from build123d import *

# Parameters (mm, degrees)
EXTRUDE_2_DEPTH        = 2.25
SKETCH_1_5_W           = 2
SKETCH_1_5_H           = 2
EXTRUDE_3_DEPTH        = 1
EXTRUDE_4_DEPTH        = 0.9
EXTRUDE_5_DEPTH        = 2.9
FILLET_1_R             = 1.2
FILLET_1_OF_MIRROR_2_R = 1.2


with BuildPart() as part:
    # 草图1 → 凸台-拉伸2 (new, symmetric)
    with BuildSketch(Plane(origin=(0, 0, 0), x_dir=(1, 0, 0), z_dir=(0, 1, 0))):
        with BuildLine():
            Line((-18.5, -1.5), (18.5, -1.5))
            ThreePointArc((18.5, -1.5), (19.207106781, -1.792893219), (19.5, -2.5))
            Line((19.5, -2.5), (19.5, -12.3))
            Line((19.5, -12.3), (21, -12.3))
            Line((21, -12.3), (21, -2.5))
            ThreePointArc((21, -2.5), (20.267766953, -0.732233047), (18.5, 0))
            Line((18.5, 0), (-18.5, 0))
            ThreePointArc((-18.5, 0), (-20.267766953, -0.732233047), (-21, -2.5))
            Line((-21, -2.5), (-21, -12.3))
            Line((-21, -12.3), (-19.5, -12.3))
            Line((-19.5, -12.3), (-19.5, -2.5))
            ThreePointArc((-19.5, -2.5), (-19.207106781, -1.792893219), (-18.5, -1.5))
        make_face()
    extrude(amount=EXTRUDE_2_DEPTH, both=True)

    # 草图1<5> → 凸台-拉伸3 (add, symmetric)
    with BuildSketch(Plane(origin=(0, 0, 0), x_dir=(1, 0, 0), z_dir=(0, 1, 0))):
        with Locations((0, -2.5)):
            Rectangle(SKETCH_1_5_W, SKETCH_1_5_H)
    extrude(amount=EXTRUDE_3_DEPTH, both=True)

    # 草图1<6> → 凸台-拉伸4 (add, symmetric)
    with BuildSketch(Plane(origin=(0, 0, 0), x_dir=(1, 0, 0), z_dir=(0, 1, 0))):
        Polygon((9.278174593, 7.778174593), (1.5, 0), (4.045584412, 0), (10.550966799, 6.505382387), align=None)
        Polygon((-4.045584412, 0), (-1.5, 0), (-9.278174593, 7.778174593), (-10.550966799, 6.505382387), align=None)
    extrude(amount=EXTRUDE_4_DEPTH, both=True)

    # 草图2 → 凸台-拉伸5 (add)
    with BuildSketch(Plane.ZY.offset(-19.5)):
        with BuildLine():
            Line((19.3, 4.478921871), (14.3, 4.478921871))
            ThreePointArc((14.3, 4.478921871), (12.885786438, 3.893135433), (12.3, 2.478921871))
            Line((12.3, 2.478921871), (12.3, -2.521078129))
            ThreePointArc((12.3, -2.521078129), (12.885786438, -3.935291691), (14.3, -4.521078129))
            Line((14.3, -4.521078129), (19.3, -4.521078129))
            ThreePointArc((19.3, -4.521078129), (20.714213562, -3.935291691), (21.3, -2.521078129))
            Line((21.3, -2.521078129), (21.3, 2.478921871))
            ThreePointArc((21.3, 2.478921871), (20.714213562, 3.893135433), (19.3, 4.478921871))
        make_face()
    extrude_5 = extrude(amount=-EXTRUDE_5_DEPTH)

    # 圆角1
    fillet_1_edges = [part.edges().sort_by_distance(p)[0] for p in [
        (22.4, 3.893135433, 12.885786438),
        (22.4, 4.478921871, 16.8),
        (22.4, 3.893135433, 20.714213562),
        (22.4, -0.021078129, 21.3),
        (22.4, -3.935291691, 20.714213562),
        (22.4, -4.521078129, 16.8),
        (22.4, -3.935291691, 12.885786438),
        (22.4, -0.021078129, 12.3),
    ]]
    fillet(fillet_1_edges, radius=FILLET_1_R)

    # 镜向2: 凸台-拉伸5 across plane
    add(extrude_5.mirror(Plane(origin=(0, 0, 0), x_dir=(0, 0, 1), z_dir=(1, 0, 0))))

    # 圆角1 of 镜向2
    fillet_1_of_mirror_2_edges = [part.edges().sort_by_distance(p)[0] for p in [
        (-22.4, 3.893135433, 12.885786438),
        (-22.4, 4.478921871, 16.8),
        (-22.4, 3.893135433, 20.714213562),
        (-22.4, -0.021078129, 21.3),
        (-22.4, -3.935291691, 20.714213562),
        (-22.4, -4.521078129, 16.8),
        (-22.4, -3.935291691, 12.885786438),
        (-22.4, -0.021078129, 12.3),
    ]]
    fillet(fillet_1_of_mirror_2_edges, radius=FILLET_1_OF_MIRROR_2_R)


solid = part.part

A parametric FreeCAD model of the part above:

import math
import FreeCAD as App
import Part
import Sketcher

V = App.Vector


def edges_at(feature, points):
    """Names of the edges that pass closest to the given points."""
    edges = feature.Shape.Edges
    near = lambda p: min(range(len(edges)), key=lambda i: edges[i].distToShape(Part.Vertex(*p))[0])
    return sorted({f"Edge{near(p) + 1}" for p in points})

doc = App.newDocument("Part")
params = doc.addObject("Spreadsheet::Sheet", "Params")
for row, (alias, value) in enumerate([
    ("sketch1_radius", "1 mm"),
    ("sketch1_radius2", "2.5 mm"),
    ("sketch1_width", "37 mm"),
    ("sketch1_height", "9.8 mm"),
    ("pad1_length", "4.5 mm"),
    ("sketch2_width", "2 mm"),
    ("pad2_length", "2 mm"),
    ("sketch3_length", "11 mm"),
    ("sketch3_length2", "9.2 mm"),
    ("pad3_length", "1.8 mm"),
    ("sketch4_radius", "2 mm"),
    ("sketch4_width", "5 mm"),
    ("pad4_length", "2.9 mm"),
    ("fillet_radius", "1.2 mm"),
    ("fillet2_radius", "1.2 mm"),
], start=1):
    params.set(f"A{row}", alias)
    params.set(f"B{row}", "=" + value)
    params.setAlias(f"B{row}", alias)

body = doc.addObject("PartDesign::Body", "Body")

# Sketch on XZ plane
sketch1 = doc.addObject("Sketcher::SketchObject", "Sketch")
body.addObject(sketch1)
sketch1.AttachmentSupport = (doc.XZ_Plane, [""])
sketch1.MapMode = "FlatFace"
sketch1.addGeometry([
    Part.LineSegment(V(-18.5, 1.5, 0), V(18.5, 1.5, 0)),  # 0
    Part.ArcOfCircle(Part.Circle(V(18.5, 2.5, 0), V(0, 0, 1), 1), math.radians(-90), math.radians(0)),  # 1
    Part.LineSegment(V(19.5, 2.5, 0), V(19.5, 12.3, 0)),  # 2
    Part.LineSegment(V(19.5, 12.3, 0), V(21, 12.3, 0)),  # 3
    Part.LineSegment(V(21, 12.3, 0), V(21, 2.5, 0)),  # 4
    Part.ArcOfCircle(Part.Circle(V(18.5, 2.5, 0), V(0, 0, 1), 2.5), math.radians(-90), math.radians(0)),  # 5
    Part.LineSegment(V(18.5, 0, 0), V(-18.5, 0, 0)),  # 6
    Part.ArcOfCircle(Part.Circle(V(-18.5, 2.5, 0), V(0, 0, 1), 2.5), math.radians(180), math.radians(270)),  # 7
    Part.LineSegment(V(-21, 2.5, 0), V(-21, 12.3, 0)),  # 8
    Part.LineSegment(V(-21, 12.3, 0), V(-19.5, 12.3, 0)),  # 9
    Part.LineSegment(V(-19.5, 12.3, 0), V(-19.5, 2.5, 0)),  # 10
    Part.ArcOfCircle(Part.Circle(V(-18.5, 2.5, 0), V(0, 0, 1), 1), math.radians(-180), math.radians(-90)),  # 11
], False)
sketch1.addConstraint([
    Sketcher.Constraint("Tangent", 0, 2, 1, 1),
    Sketcher.Constraint("Tangent", 1, 2, 2, 1),
    Sketcher.Constraint("Coincident", 2, 2, 3, 1),
    Sketcher.Constraint("Coincident", 3, 2, 4, 1),
    Sketcher.Constraint("Tangent", 4, 2, 5, 2),
    Sketcher.Constraint("Tangent", 5, 1, 6, 1),
    Sketcher.Constraint("Tangent", 6, 2, 7, 2),
    Sketcher.Constraint("Tangent", 7, 1, 8, 1),
    Sketcher.Constraint("Coincident", 8, 2, 9, 1),
    Sketcher.Constraint("Coincident", 9, 2, 10, 1),
    Sketcher.Constraint("Tangent", 10, 2, 11, 1),
    Sketcher.Constraint("Tangent", 11, 2, 0, 1),
    Sketcher.Constraint("Horizontal", 0),
    Sketcher.Constraint("Vertical", 2),
    Sketcher.Constraint("Horizontal", 3),
    Sketcher.Constraint("Vertical", 4),
    Sketcher.Constraint("Horizontal", 6),
    Sketcher.Constraint("Vertical", 8),
    Sketcher.Constraint("Horizontal", 9),
    Sketcher.Constraint("Vertical", 10),
    Sketcher.Constraint("Coincident", 5, 3, 1, 3),
    Sketcher.Constraint("Coincident", 11, 3, 7, 3),
    Sketcher.Constraint("Equal", 5, 7),
    Sketcher.Constraint("Symmetric", 5, 1, 6, 2, -1, 1),
    Sketcher.Constraint("Horizontal", 3, 2, 8, 2),
    Sketcher.Constraint("Radius", 1, 1.0),
    Sketcher.Constraint("Radius", 5, 2.5),
    Sketcher.Constraint("DistanceX", 0, 1, 0, 2, 37.0),
    Sketcher.Constraint("DistanceY", 2, 1, 2, 2, 9.8),
])
sketch1.setExpression("Constraints[25]", "Params.sketch1_radius")
sketch1.setExpression("Constraints[26]", "Params.sketch1_radius2")
sketch1.setExpression("Constraints[27]", "Params.sketch1_width")
sketch1.setExpression("Constraints[28]", "Params.sketch1_height")
pad1 = doc.addObject("PartDesign::Pad", "Pad")
body.addObject(pad1)
pad1.Profile = sketch1
pad1.setExpression("Length", "Params.pad1_length")
pad1.Midplane = True

# Sketch on XZ plane
sketch2 = doc.addObject("Sketcher::SketchObject", "Sketch001")
body.addObject(sketch2)
sketch2.AttachmentSupport = (doc.XZ_Plane, [""])
sketch2.MapMode = "FlatFace"
sketch2.addGeometry([
    Part.LineSegment(V(-1, 1.5, 0), V(-1, 3.5, 0)),
    Part.LineSegment(V(-1, 3.5, 0), V(1, 3.5, 0)),
    Part.LineSegment(V(1, 3.5, 0), V(1, 1.5, 0)),
    Part.LineSegment(V(1, 1.5, 0), V(-1, 1.5, 0)),
], False)
sketch2.addConstraint([
    Sketcher.Constraint("Coincident", 0, 2, 1, 1),
    Sketcher.Constraint("Coincident", 1, 2, 2, 1),
    Sketcher.Constraint("Coincident", 2, 2, 3, 1),
    Sketcher.Constraint("Coincident", 3, 2, 0, 1),
    Sketcher.Constraint("Vertical", 0),
    Sketcher.Constraint("Horizontal", 1),
    Sketcher.Constraint("Vertical", 2),
    Sketcher.Constraint("Horizontal", 3),
    Sketcher.Constraint("Equal", 3, 0),
    Sketcher.Constraint("DistanceX", 1, 1, 1, 2, 2.0),
    Sketcher.Constraint("DistanceX", 0, 2, -1, 1, 1.0),
    Sketcher.Constraint("DistanceY", -1, 1, 0, 2, 3.5),
])
sketch2.setExpression("Constraints[9]", "Params.sketch2_width")
pad2 = doc.addObject("PartDesign::Pad", "Pad001")
body.addObject(pad2)
pad2.Profile = sketch2
pad2.setExpression("Length", "Params.pad2_length")
pad2.Midplane = True

# Sketch on XZ plane
sketch3 = doc.addObject("Sketcher::SketchObject", "Sketch002")
body.addObject(sketch3)
sketch3.AttachmentSupport = (doc.XZ_Plane, [""])
sketch3.MapMode = "FlatFace"
sketch3.addGeometry([
    Part.LineSegment(V(9.278175, -7.778175, 0), V(1.5, 0, 0)),  # 0
    Part.LineSegment(V(1.5, 0, 0), V(4.045584, 0, 0)),  # 1
    Part.LineSegment(V(4.045584, 0, 0), V(10.550967, -6.505382, 0)),  # 2
    Part.LineSegment(V(10.550967, -6.505382, 0), V(9.278175, -7.778175, 0)),  # 3
    Part.LineSegment(V(-4.045584, 0, 0), V(-1.5, 0, 0)),  # 4
    Part.LineSegment(V(-1.5, 0, 0), V(-9.278175, -7.778175, 0)),  # 5
    Part.LineSegment(V(-9.278175, -7.778175, 0), V(-10.550967, -6.505382, 0)),  # 6
    Part.LineSegment(V(-10.550967, -6.505382, 0), V(-4.045584, 0, 0)),  # 7
], False)
sketch3.addConstraint([
    Sketcher.Constraint("Coincident", 0, 2, 1, 1),
    Sketcher.Constraint("Coincident", 1, 2, 2, 1),
    Sketcher.Constraint("Coincident", 2, 2, 3, 1),
    Sketcher.Constraint("Coincident", 3, 2, 0, 1),
    Sketcher.Constraint("Coincident", 4, 2, 5, 1),
    Sketcher.Constraint("Coincident", 5, 2, 6, 1),
    Sketcher.Constraint("Coincident", 6, 2, 7, 1),
    Sketcher.Constraint("Coincident", 7, 2, 4, 1),
    Sketcher.Constraint("Horizontal", 1),
    Sketcher.Constraint("Horizontal", 4),
    Sketcher.Constraint("Symmetric", 0, 2, 4, 2, -1, 1),
    Sketcher.Constraint("Symmetric", 3, 2, 5, 2, -2),
    Sketcher.Constraint("Symmetric", 2, 2, 6, 2, -2),
    Sketcher.Constraint("Symmetric", 1, 2, 7, 2, -2),
    Sketcher.Constraint("Parallel", 0, 2),
    Sketcher.Constraint("Perpendicular", 2, 3),
    Sketcher.Constraint("Parallel", 3, 5),
    Sketcher.Constraint("Distance", 0, 11.0),
    Sketcher.Constraint("DistanceX", 4, 2, 0, 2, 3.0),
    Sketcher.Constraint("Distance", 2, 9.2),
])
sketch3.setExpression("Constraints[17]", "Params.sketch3_length")
sketch3.setExpression("Constraints[19]", "Params.sketch3_length2")
pad3 = doc.addObject("PartDesign::Pad", "Pad002")
body.addObject(pad3)
pad3.Profile = sketch3
pad3.setExpression("Length", "Params.pad3_length")
pad3.Midplane = True

# Sketch on YZ plane
sketch4 = doc.addObject("Sketcher::SketchObject", "Sketch003")
body.addObject(sketch4)
sketch4.AttachmentSupport = (doc.YZ_Plane, [""])
sketch4.MapMode = "FlatFace"
sketch4.AttachmentOffset = App.Placement(V(0, 0, 19.5), App.Rotation())
sketch4.addGeometry([
    Part.LineSegment(V(4.478922, 19.3, 0), V(4.478922, 14.3, 0)),  # 0
    Part.ArcOfCircle(Part.Circle(V(2.478922, 14.3, 0), V(0, 0, 1), 2), math.radians(-90), math.radians(0)),  # 1
    Part.LineSegment(V(2.478922, 12.3, 0), V(-2.521078, 12.3, 0)),  # 2
    Part.ArcOfCircle(Part.Circle(V(-2.521078, 14.3, 0), V(0, 0, 1), 2), math.radians(-180), math.radians(-90)),  # 3
    Part.LineSegment(V(-4.521078, 14.3, 0), V(-4.521078, 19.3, 0)),  # 4
    Part.ArcOfCircle(Part.Circle(V(-2.521078, 19.3, 0), V(0, 0, 1), 2), math.radians(90), math.radians(180)),  # 5
    Part.LineSegment(V(-2.521078, 21.3, 0), V(2.478922, 21.3, 0)),  # 6
    Part.ArcOfCircle(Part.Circle(V(2.478922, 19.3, 0), V(0, 0, 1), 2), math.radians(0), math.radians(90)),  # 7
], False)
sketch4.addConstraint([
    Sketcher.Constraint("Tangent", 0, 2, 1, 2),
    Sketcher.Constraint("Tangent", 1, 1, 2, 1),
    Sketcher.Constraint("Tangent", 2, 2, 3, 2),
    Sketcher.Constraint("Tangent", 3, 1, 4, 1),
    Sketcher.Constraint("Tangent", 4, 2, 5, 2),
    Sketcher.Constraint("Tangent", 5, 1, 6, 1),
    Sketcher.Constraint("Tangent", 6, 2, 7, 2),
    Sketcher.Constraint("Tangent", 7, 1, 0, 1),
    Sketcher.Constraint("Vertical", 0),
    Sketcher.Constraint("Horizontal", 2),
    Sketcher.Constraint("Vertical", 4),
    Sketcher.Constraint("Horizontal", 6),
    Sketcher.Constraint("Equal", 1, 3),
    Sketcher.Constraint("Equal", 3, 5),
    Sketcher.Constraint("Equal", 5, 7),
    Sketcher.Constraint("Equal", 6, 0),
    Sketcher.Constraint("Radius", 1, 2.0),
    Sketcher.Constraint("DistanceX", 2, 2, 2, 1, 5.0),
    Sketcher.Constraint("DistanceY", -1, 1, 1, 3, 14.3),
    Sketcher.Constraint("DistanceX", -1, 1, 1, 3, 2.478922),
])
sketch4.setExpression("Constraints[16]", "Params.sketch4_radius")
sketch4.setExpression("Constraints[17]", "Params.sketch4_width")
pad4 = doc.addObject("PartDesign::Pad", "Pad003")
body.addObject(pad4)
pad4.Profile = sketch4
pad4.setExpression("Length", "Params.pad4_length")
doc.recompute()

fillet = doc.addObject("PartDesign::Fillet", "Fillet")
body.addObject(fillet)
fillet.Base = (pad4, edges_at(pad4, [
    (22.4, 3.893, 12.886),
    (22.4, 4.479, 16.8),
    (22.4, 3.893, 20.714),
    (22.4, -0.021, 21.3),
    (22.4, -3.935, 20.714),
    (22.4, -4.521, 16.8),
    (22.4, -3.935, 12.886),
    (22.4, -0.021, 12.3),
]))
fillet.setExpression("Radius", "Params.fillet_radius")
doc.recompute()

mirrored = doc.addObject("PartDesign::Mirrored", "Mirrored")
body.addObject(mirrored)
mirrored.Originals = [pad4]
mirrored.MirrorPlane = (doc.YZ_Plane, [""])
body.Tip = mirrored
doc.recompute()

fillet2 = doc.addObject("PartDesign::Fillet", "Fillet001")
body.addObject(fillet2)
fillet2.Base = (mirrored, edges_at(mirrored, [
    (-22.4, 3.893, 12.886),
    (-22.4, 4.479, 16.8),
    (-22.4, 3.893, 20.714),
    (-22.4, -0.021, 21.3),
    (-22.4, -3.935, 20.714),
    (-22.4, -4.521, 16.8),
    (-22.4, -3.935, 12.886),
    (-22.4, -0.021, 12.3),
]))
fillet2.setExpression("Radius", "Params.fillet2_radius")

doc.recompute()
